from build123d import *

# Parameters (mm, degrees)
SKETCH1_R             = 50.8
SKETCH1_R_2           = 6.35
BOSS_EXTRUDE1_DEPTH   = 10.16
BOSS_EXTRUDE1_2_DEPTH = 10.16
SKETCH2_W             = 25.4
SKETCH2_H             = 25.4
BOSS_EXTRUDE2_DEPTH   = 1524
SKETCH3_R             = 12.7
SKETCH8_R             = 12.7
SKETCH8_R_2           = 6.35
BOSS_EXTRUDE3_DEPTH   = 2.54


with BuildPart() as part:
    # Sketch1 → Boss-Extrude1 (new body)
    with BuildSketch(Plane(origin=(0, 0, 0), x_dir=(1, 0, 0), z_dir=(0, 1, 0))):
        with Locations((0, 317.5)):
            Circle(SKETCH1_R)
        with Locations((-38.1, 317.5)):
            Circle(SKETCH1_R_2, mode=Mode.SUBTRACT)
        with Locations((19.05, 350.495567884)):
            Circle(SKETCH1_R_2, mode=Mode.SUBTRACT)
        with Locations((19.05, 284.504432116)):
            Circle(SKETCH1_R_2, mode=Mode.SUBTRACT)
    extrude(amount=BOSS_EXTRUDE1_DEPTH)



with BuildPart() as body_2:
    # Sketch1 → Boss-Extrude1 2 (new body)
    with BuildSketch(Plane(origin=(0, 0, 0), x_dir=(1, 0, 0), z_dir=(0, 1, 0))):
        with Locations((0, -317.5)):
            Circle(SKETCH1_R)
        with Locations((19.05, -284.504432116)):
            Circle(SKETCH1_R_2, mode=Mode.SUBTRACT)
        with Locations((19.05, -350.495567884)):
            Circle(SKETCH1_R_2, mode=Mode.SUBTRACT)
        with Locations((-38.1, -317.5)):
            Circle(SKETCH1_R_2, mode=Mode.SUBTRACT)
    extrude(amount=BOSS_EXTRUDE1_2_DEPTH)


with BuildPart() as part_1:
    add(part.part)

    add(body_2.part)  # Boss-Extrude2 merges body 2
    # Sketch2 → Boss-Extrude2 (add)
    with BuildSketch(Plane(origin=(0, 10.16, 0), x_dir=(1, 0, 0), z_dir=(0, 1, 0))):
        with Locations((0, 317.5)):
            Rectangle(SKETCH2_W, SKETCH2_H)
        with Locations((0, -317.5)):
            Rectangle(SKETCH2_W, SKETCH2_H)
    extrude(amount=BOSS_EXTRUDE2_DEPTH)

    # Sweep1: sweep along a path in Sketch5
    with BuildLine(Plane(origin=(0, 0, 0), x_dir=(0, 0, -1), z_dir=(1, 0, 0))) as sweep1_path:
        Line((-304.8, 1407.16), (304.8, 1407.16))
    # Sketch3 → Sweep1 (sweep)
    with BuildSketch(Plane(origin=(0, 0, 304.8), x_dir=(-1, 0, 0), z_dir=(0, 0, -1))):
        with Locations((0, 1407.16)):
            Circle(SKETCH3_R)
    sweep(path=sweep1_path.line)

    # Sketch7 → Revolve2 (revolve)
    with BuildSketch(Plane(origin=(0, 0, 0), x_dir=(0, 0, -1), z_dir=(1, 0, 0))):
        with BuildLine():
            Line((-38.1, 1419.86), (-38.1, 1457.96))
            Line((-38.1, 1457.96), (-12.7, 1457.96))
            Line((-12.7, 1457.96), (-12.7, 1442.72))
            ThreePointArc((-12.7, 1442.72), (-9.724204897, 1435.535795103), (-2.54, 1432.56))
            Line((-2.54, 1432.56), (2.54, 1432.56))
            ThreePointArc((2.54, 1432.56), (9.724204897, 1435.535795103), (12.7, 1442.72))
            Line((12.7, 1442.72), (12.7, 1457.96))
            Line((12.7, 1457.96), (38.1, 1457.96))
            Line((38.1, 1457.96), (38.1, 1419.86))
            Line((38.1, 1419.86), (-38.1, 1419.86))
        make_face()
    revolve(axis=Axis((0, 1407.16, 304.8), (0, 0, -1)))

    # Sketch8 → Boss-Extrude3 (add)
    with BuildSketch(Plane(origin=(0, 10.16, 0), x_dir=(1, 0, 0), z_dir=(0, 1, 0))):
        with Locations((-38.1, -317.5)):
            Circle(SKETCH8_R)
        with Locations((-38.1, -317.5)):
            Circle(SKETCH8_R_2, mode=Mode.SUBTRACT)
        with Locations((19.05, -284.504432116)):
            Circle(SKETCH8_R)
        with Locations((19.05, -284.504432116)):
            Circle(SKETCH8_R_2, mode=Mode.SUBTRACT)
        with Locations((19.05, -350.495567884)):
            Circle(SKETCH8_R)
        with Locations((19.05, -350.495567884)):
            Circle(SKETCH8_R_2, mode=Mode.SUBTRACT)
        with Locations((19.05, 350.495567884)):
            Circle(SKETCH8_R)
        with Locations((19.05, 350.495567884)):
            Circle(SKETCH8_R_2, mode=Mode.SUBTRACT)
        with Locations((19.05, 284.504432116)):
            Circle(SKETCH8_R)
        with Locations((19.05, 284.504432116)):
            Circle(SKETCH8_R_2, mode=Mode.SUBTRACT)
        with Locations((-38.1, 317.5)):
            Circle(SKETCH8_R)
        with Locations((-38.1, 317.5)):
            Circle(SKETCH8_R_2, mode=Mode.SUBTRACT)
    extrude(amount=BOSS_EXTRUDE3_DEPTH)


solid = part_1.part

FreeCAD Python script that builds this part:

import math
import FreeCAD as App
import Part
import Sketcher
from FreeCAD import Vector
Q = App.Units.Quantity


def add_polygon(sketch, points):
    """Adds a closed chain of lines whose ends are joined by coincident constraints."""
    first, n = sketch.GeometryCount, len(points)
    for a, b in zip(points, points[1:] + points[:1]):
        sketch.addGeometry(Part.LineSegment(App.Vector(*a, 0), App.Vector(*b, 0)), False)
    for i in range(n):
        sketch.addConstraint(Sketcher.Constraint("Coincident", first + i, 2, first + (i + 1) % n, 1))

doc = App.newDocument("Part")
params = doc.addObject("Spreadsheet::Sheet", "Params")
for row, (alias, value) in enumerate([
    ("sketch1_diameter", "4 in"),
    ("sketch1_diameter2", "0.5 in"),
    ("pad1_length", "0.4 in"),
    ("sketch2_diameter", "4 in"),
    ("sketch2_diameter2", "0.5 in"),
    ("pad2_length", "0.4 in"),
    ("sketch3_width", "1 in"),
    ("pad3_length", "60 in"),
    ("sketch4_diameter", "1 in"),
    ("sketch5_height", "24 in"),
    ("sketch6_radius", "0.4 in"),
    ("sketch6_height", "3 in"),
    ("sketch6_height2", "1 in"),
    ("sketch6_width", "1.5 in"),
    ("sketch6_width2", "0.6 in"),
    ("revolution_angle", "360 deg"),
    ("sketch7_diameter", "1 in"),
    ("sketch7_diameter2", "0.5 in"),
    ("pad4_length", "0.1 in"),
], start=1):
    params.set(f"A{row}", alias)
    params.set(f"B{row}", "=" + value)
    params.setAlias(f"B{row}", alias)

body = doc.addObject("PartDesign::Body", "Body")

sketch1 = body.newObject("Sketcher::SketchObject", "Sketch")
sketch1.AttachmentSupport = (doc.getObject("XZ_Plane"), [""])
sketch1.MapMode = "FlatFace"
sketch1.addGeometry(Part.Circle(Vector(0, -318, 0), Vector(0, 0, 1), 51), False)
sketch1.addGeometry(Part.Circle(Vector(19, -285, 0), Vector(0, 0, 1), 6), False)
sketch1.addGeometry(Part.Circle(Vector(-38, -318, 0), Vector(0, 0, 1), 6), False)
sketch1.addGeometry(Part.Circle(Vector(19, -350, 0), Vector(0, 0, 1), 6), False)
sketch1.addConstraint(Sketcher.Constraint("Equal", 1, 2))
sketch1.addConstraint(Sketcher.Constraint("Equal", 2, 3))
sketch1.addConstraint(Sketcher.Constraint("PointOnObject", 0, 3, -2))
sketch1.addConstraint(Sketcher.Constraint("Horizontal", 0, 3, 2, 3))
sketch1.addConstraint(Sketcher.Constraint("Vertical", 1, 3, 3, 3))
sketch1.addConstraint(Sketcher.Constraint("Diameter", 0, Q("4 in")))
sketch1.addConstraint(Sketcher.Constraint("Diameter", 1, Q("0.5 in")))
sketch1.addConstraint(Sketcher.Constraint("DistanceY", 0, 3, -1, 1, Q("12.5 in")))
sketch1.addConstraint(Sketcher.Constraint("DistanceX", 2, 3, -1, 1, Q("1.5 in")))
sketch1.addConstraint(Sketcher.Constraint("DistanceX", -1, 1, 1, 3, Q("0.75 in")))
sketch1.addConstraint(Sketcher.Constraint("DistanceY", 1, 3, -1, 1, Q("284.504432 mm")))
sketch1.addConstraint(Sketcher.Constraint("DistanceY", 3, 3, -1, 1, Q("350.495568 mm")))
sketch1.setExpression("Constraints[5]", "Params.sketch1_diameter")
sketch1.setExpression("Constraints[6]", "Params.sketch1_diameter2")
pad1 = body.newObject("PartDesign::Pad", "Pad")
pad1.Profile = sketch1
pad1.setExpression("Length", "Params.pad1_length")
pad1.Reversed = True
body2 = doc.addObject("PartDesign::Body", "Body001")

sketch2 = body2.newObject("Sketcher::SketchObject", "Sketch001")
sketch2.AttachmentSupport = (doc.getObject("XZ_Plane001"), [""])
sketch2.MapMode = "FlatFace"
sketch2.addGeometry(Part.Circle(Vector(0, 318, 0), Vector(0, 0, 1), 51), False)
sketch2.addGeometry(Part.Circle(Vector(19, 350, 0), Vector(0, 0, 1), 6), False)
sketch2.addGeometry(Part.Circle(Vector(-38, 318, 0), Vector(0, 0, 1), 6), False)
sketch2.addGeometry(Part.Circle(Vector(19, 285, 0), Vector(0, 0, 1), 6), False)
sketch2.addConstraint(Sketcher.Constraint("Equal", 1, 2))
sketch2.addConstraint(Sketcher.Constraint("Equal", 2, 3))
sketch2.addConstraint(Sketcher.Constraint("PointOnObject", 0, 3, -2))
sketch2.addConstraint(Sketcher.Constraint("Horizontal", 0, 3, 2, 3))
sketch2.addConstraint(Sketcher.Constraint("Vertical", 1, 3, 3, 3))
sketch2.addConstraint(Sketcher.Constraint("Diameter", 0, Q("4 in")))
sketch2.addConstraint(Sketcher.Constraint("Diameter", 1, Q("0.5 in")))
sketch2.addConstraint(Sketcher.Constraint("DistanceY", -1, 1, 0, 3, Q("12.5 in")))
sketch2.addConstraint(Sketcher.Constraint("DistanceX", 2, 3, -1, 1, Q("1.5 in")))
sketch2.addConstraint(Sketcher.Constraint("DistanceX", -1, 1, 1, 3, Q("0.75 in")))
sketch2.addConstraint(Sketcher.Constraint("DistanceY", -1, 1, 1, 3, Q("350.495568 mm")))
sketch2.addConstraint(Sketcher.Constraint("DistanceY", -1, 1, 3, 3, Q("284.504432 mm")))
sketch2.setExpression("Constraints[5]", "Params.sketch2_diameter")
sketch2.setExpression("Constraints[6]", "Params.sketch2_diameter2")
pad2 = body2.newObject("PartDesign::Pad", "Pad001")
pad2.Profile = sketch2
pad2.setExpression("Length", "Params.pad2_length")
pad2.Reversed = True
body.AllowCompound = True
doc.recompute()

boolean = body.newObject("PartDesign::Boolean", "Boolean")
boolean.Type = "Fuse"
boolean.addObjects([body2])

sketch3 = body.newObject("Sketcher::SketchObject", "Sketch002")
sketch3.AttachmentSupport = (doc.getObject("XZ_Plane"), [""])
sketch3.MapMode = "FlatFace"
sketch3.AttachmentOffset = App.Placement(Vector(0, 0, -0.4 * 25.4), App.Rotation())
add_polygon(sketch3, [(-13, -330), (-13, -305), (13, -305), (13, -330)])
add_polygon(sketch3, [(-13, 305), (-13, 330), (13, 330), (13, 305)])
sketch3.addConstraint(Sketcher.Constraint("Vertical", 0))
sketch3.addConstraint(Sketcher.Constraint("Horizontal", 1))
sketch3.addConstraint(Sketcher.Constraint("Vertical", 2))
sketch3.addConstraint(Sketcher.Constraint("Horizontal", 3))
sketch3.addConstraint(Sketcher.Constraint("Vertical", 4))
sketch3.addConstraint(Sketcher.Constraint("Horizontal", 5))
sketch3.addConstraint(Sketcher.Constraint("Vertical", 6))
sketch3.addConstraint(Sketcher.Constraint("Horizontal", 7))
sketch3.addConstraint(Sketcher.Constraint("Symmetric", 2, 2, 4, 2, -1, 1))
sketch3.addConstraint(Sketcher.Constraint("Symmetric", 0, 2, 6, 2, -1, 1))
sketch3.addConstraint(Sketcher.Constraint("Vertical", 3, 2, 4, 2))
sketch3.addConstraint(Sketcher.Constraint("Equal", 7, 0))
sketch3.addConstraint(Sketcher.Constraint("DistanceX", 1, 1, 1, 2, Q("1 in")))
sketch3.addConstraint(Sketcher.Constraint("DistanceY", 0, 2, -1, 1, Q("12 in")))
sketch3.setExpression("Constraints[20]", "Params.sketch3_width")
pad3 = body.newObject("PartDesign::Pad", "Pad002")
pad3.Profile = sketch3
pad3.setExpression("Length", "Params.pad3_length")
pad3.Reversed = True

sketch4 = body.newObject("Sketcher::SketchObject", "Sketch003")
sketch4.AttachmentSupport = (doc.getObject("XY_Plane"), [""])
sketch4.MapMode = "FlatFace"
sketch4.AttachmentOffset = App.Placement(Vector(0, 0, 12 * 25.4), App.Rotation())
sketch4.addGeometry(Part.Circle(Vector(0, 1407, 0), Vector(0, 0, 1), 13), False)
sketch4.addConstraint(Sketcher.Constraint("PointOnObject", 0, 3, -2))
sketch4.addConstraint(Sketcher.Constraint("Diameter", 0, Q("1 in")))
sketch4.addConstraint(Sketcher.Constraint("DistanceY", -1, 1, 0, 3, Q("55.4 in")))
sketch4.setExpression("Constraints[1]", "Params.sketch4_diameter")

sketch5 = body.newObject("Sketcher::SketchObject", "Sketch004")
sketch5.AttachmentSupport = (doc.getObject("XZ_Plane"), [""])
sketch5.MapMode = "FlatFace"
sketch5.AttachmentOffset = App.Placement(Vector(0, 0, -55.4 * 25.4), App.Rotation())
sketch5.addGeometry(Part.LineSegment(Vector(0, 305, 0), Vector(0, -305, 0)), False)
sketch5.addConstraint(Sketcher.Constraint("Vertical", 0))
sketch5.addConstraint(Sketcher.Constraint("Symmetric", 0, 1, 0, 2, -1, 1))
sketch5.addConstraint(Sketcher.Constraint("DistanceY", 0, 2, 0, 1, Q("24 in")))
sketch5.setExpression("Constraints[2]", "Params.sketch5_height")
doc.recompute()

additivepipe = body.newObject("PartDesign::AdditivePipe", "AdditivePipe")
additivepipe.Profile = sketch4
additivepipe.Spine = (sketch5, ["Edge1"])

sketch6 = body.newObject("Sketcher::SketchObject", "Sketch005")
sketch6.AttachmentSupport = (doc.getObject("YZ_Plane"), [""])
sketch6.MapMode = "FlatFace"
sketch6.addGeometry(Part.LineSegment(Vector(1458, 38, 0), Vector(1420, 38, 0)), False)
sketch6.addGeometry(Part.LineSegment(Vector(1420, 38, 0), Vector(1420, -38, 0)), False)
sketch6.addGeometry(Part.LineSegment(Vector(1420, -38, 0), Vector(1458, -38, 0)), False)
sketch6.addGeometry(Part.LineSegment(Vector(1458, -38, 0), Vector(1458, -13, 0)), False)
sketch6.addGeometry(Part.LineSegment(Vector(1458, -13, 0), Vector(1443, -13, 0)), False)
sketch6.addGeometry(Part.ArcOfCircle(Part.Circle(Vector(1443, -3, 0), Vector(0, 0, 1), 10), math.radians(180), math.radians(270)), False)
sketch6.addGeometry(Part.LineSegment(Vector(1433, -3, 0), Vector(1433, 3, 0)), False)
sketch6.addGeometry(Part.ArcOfCircle(Part.Circle(Vector(1443, 3, 0), Vector(0, 0, 1), 10), math.radians(90), math.radians(180)), False)
sketch6.addGeometry(Part.LineSegment(Vector(1443, 13, 0), Vector(1458, 13, 0)), False)
sketch6.addGeometry(Part.LineSegment(Vector(1458, 13, 0), Vector(1458, 38, 0)), False)
sketch6.addGeometry(Part.LineSegment(Vector(1407, 38, 0), Vector(1407, -38, 0)), True)
sketch6.addConstraint(Sketcher.Constraint("Coincident", 0, 2, 1, 1))
sketch6.addConstraint(Sketcher.Constraint("Coincident", 1, 2, 2, 1))
sketch6.addConstraint(Sketcher.Constraint("Coincident", 2, 2, 3, 1))
sketch6.addConstraint(Sketcher.Constraint("Coincident", 3, 2, 4, 1))
sketch6.addConstraint(Sketcher.Constraint("Tangent", 4, 2, 5, 2))
sketch6.addConstraint(Sketcher.Constraint("Tangent", 5, 1, 6, 1))
sketch6.addConstraint(Sketcher.Constraint("Tangent", 6, 2, 7, 2))
sketch6.addConstraint(Sketcher.Constraint("Tangent", 7, 1, 8, 1))
sketch6.addConstraint(Sketcher.Constraint("Coincident", 8, 2, 9, 1))
sketch6.addConstraint(Sketcher.Constraint("Coincident", 9, 2, 0, 1))
sketch6.addConstraint(Sketcher.Constraint("Horizontal", 0))
sketch6.addConstraint(Sketcher.Constraint("Vertical", 1))
sketch6.addConstraint(Sketcher.Constraint("Horizontal", 2))
sketch6.addConstraint(Sketcher.Constraint("Vertical", 3))
sketch6.addConstraint(Sketcher.Constraint("Horizontal", 4))
sketch6.addConstraint(Sketcher.Constraint("Vertical", 6))
sketch6.addConstraint(Sketcher.Constraint("Horizontal", 8))
sketch6.addConstraint(Sketcher.Constraint("Vertical", 9))
sketch6.addConstraint(Sketcher.Constraint("Vertical", 10))
sketch6.addConstraint(Sketcher.Constraint("Equal", 5, 7))
sketch6.addConstraint(Sketcher.Constraint("Symmetric", 3, 2, 8, 2, -1))
sketch6.addConstraint(Sketcher.Constraint("Horizontal", 9, 2, 10, 1))
sketch6.addConstraint(Sketcher.Constraint("Horizontal", 2, 2, 10, 2))
sketch6.addConstraint(Sketcher.Constraint("Equal", 3, 9))
sketch6.addConstraint(Sketcher.Constraint("Radius", 5, Q("0.4 in")))
sketch6.addConstraint(Sketcher.Constraint("DistanceY", 1, 2, 1, 1, Q("3 in")))
sketch6.addConstraint(Sketcher.Constraint("DistanceY", 3, 1, 3, 2, Q("1 in")))
sketch6.addConstraint(Sketcher.Constraint("DistanceX", 0, 2, 0, 1, Q("1.5 in")))
sketch6.addConstraint(Sketcher.Constraint("DistanceX", 4, 2, 4, 1, Q("0.6 in")))
sketch6.addConstraint(Sketcher.Constraint("DistanceX", 10, 1, 6, 2, Q("1 in")))
sketch6.addConstraint(Sketcher.Constraint("DistanceX", -1, 1, 5, 3, Q("56.8 in")))
sketch6.setExpression("Constraints[24]", "Params.sketch6_radius")
sketch6.setExpression("Constraints[25]", "Params.sketch6_height")
sketch6.setExpression("Constraints[26]", "Params.sketch6_height2")
sketch6.setExpression("Constraints[27]", "Params.sketch6_width")
sketch6.setExpression("Constraints[28]", "Params.sketch6_width2")
revolution = body.newObject("PartDesign::Revolution", "Revolution")
revolution.Profile = sketch6
revolution.ReferenceAxis = (sketch6, ["Axis0"])
revolution.setExpression("Angle", "Params.revolution_angle")

sketch7 = body.newObject("Sketcher::SketchObject", "Sketch006")
sketch7.AttachmentSupport = (doc.getObject("XZ_Plane"), [""])
sketch7.MapMode = "FlatFace"
sketch7.AttachmentOffset = App.Placement(Vector(0, 0, -0.4 * 25.4), App.Rotation())
sketch7.addGeometry(Part.Circle(Vector(-38, 318, 0), Vector(0, 0, 1), 13), False)
sketch7.addGeometry(Part.Circle(Vector(-38, 318, 0), Vector(0, 0, 1), 6), False)
sketch7.addGeometry(Part.Circle(Vector(19, 285, 0), Vector(0, 0, 1), 13), False)
sketch7.addGeometry(Part.Circle(Vector(19, 285, 0), Vector(0, 0, 1), 6), False)
sketch7.addGeometry(Part.Circle(Vector(19, 350, 0), Vector(0, 0, 1), 13), False)
sketch7.addGeometry(Part.Circle(Vector(19, 350, 0), Vector(0, 0, 1), 6), False)
sketch7.addGeometry(Part.Circle(Vector(19, -350, 0), Vector(0, 0, 1), 13), False)
sketch7.addGeometry(Part.Circle(Vector(19, -350, 0), Vector(0, 0, 1), 6), False)
sketch7.addGeometry(Part.Circle(Vector(19, -285, 0), Vector(0, 0, 1), 13), False)
sketch7.addGeometry(Part.Circle(Vector(19, -285, 0), Vector(0, 0, 1), 6), False)
sketch7.addGeometry(Part.Circle(Vector(-38, -318, 0), Vector(0, 0, 1), 13), False)
sketch7.addGeometry(Part.Circle(Vector(-38, -318, 0), Vector(0, 0, 1), 6), False)
sketch7.addConstraint(Sketcher.Constraint("Coincident", 1, 3, 0, 3))
sketch7.addConstraint(Sketcher.Constraint("Coincident", 3, 3, 2, 3))
sketch7.addConstraint(Sketcher.Constraint("Coincident", 5, 3, 4, 3))
sketch7.addConstraint(Sketcher.Constraint("Coincident", 7, 3, 6, 3))
sketch7.addConstraint(Sketcher.Constraint("Coincident", 9, 3, 8, 3))
sketch7.addConstraint(Sketcher.Constraint("Coincident", 11, 3, 10, 3))
sketch7.addConstraint(Sketcher.Constraint("Equal", 0, 2))
sketch7.addConstraint(Sketcher.Constraint("Equal", 1, 3))
sketch7.addConstraint(Sketcher.Constraint("Equal", 2, 4))
sketch7.addConstraint(Sketcher.Constraint("Equal", 3, 5))
sketch7.addConstraint(Sketcher.Constraint("Equal", 4, 6))
sketch7.addConstraint(Sketcher.Constraint("Equal", 5, 7))
sketch7.addConstraint(Sketcher.Constraint("Equal", 6, 8))
sketch7.addConstraint(Sketcher.Constraint("Equal", 7, 9))
sketch7.addConstraint(Sketcher.Constraint("Equal", 8, 10))
sketch7.addConstraint(Sketcher.Constraint("Equal", 9, 11))
sketch7.addConstraint(Sketcher.Constraint("Symmetric", 4, 3, 6, 3, -1))
sketch7.addConstraint(Sketcher.Constraint("Symmetric", 2, 3, 8, 3, -1))
sketch7.addConstraint(Sketcher.Constraint("Symmetric", 0, 3, 10, 3, -1))
sketch7.addConstraint(Sketcher.Constraint("Vertical", 3, 3, 4, 3))
sketch7.addConstraint(Sketcher.Constraint("Diameter", 0, Q("1 in")))
sketch7.addConstraint(Sketcher.Constraint("Diameter", 1, Q("0.5 in")))
sketch7.addConstraint(Sketcher.Constraint("DistanceY", 6, 3, 2, 3, Q("25 in")))
sketch7.addConstraint(Sketcher.Constraint("DistanceX", 0, 3, -1, 1, Q("1.5 in")))
sketch7.addConstraint(Sketcher.Constraint("DistanceY", -1, 1, 0, 3, Q("12.5 in")))
sketch7.addConstraint(Sketcher.Constraint("DistanceX", -1, 1, 2, 3, Q("0.75 in")))
sketch7.addConstraint(Sketcher.Constraint("DistanceY", -1, 1, 2, 3, Q("284.504432 mm")))
sketch7.setExpression("Constraints[20]", "Params.sketch7_diameter")
sketch7.setExpression("Constraints[21]", "Params.sketch7_diameter2")
pad4 = body.newObject("PartDesign::Pad", "Pad003")
pad4.Profile = sketch7
pad4.setExpression("Length", "Params.pad4_length")
pad4.Reversed = True

doc.recompute()
